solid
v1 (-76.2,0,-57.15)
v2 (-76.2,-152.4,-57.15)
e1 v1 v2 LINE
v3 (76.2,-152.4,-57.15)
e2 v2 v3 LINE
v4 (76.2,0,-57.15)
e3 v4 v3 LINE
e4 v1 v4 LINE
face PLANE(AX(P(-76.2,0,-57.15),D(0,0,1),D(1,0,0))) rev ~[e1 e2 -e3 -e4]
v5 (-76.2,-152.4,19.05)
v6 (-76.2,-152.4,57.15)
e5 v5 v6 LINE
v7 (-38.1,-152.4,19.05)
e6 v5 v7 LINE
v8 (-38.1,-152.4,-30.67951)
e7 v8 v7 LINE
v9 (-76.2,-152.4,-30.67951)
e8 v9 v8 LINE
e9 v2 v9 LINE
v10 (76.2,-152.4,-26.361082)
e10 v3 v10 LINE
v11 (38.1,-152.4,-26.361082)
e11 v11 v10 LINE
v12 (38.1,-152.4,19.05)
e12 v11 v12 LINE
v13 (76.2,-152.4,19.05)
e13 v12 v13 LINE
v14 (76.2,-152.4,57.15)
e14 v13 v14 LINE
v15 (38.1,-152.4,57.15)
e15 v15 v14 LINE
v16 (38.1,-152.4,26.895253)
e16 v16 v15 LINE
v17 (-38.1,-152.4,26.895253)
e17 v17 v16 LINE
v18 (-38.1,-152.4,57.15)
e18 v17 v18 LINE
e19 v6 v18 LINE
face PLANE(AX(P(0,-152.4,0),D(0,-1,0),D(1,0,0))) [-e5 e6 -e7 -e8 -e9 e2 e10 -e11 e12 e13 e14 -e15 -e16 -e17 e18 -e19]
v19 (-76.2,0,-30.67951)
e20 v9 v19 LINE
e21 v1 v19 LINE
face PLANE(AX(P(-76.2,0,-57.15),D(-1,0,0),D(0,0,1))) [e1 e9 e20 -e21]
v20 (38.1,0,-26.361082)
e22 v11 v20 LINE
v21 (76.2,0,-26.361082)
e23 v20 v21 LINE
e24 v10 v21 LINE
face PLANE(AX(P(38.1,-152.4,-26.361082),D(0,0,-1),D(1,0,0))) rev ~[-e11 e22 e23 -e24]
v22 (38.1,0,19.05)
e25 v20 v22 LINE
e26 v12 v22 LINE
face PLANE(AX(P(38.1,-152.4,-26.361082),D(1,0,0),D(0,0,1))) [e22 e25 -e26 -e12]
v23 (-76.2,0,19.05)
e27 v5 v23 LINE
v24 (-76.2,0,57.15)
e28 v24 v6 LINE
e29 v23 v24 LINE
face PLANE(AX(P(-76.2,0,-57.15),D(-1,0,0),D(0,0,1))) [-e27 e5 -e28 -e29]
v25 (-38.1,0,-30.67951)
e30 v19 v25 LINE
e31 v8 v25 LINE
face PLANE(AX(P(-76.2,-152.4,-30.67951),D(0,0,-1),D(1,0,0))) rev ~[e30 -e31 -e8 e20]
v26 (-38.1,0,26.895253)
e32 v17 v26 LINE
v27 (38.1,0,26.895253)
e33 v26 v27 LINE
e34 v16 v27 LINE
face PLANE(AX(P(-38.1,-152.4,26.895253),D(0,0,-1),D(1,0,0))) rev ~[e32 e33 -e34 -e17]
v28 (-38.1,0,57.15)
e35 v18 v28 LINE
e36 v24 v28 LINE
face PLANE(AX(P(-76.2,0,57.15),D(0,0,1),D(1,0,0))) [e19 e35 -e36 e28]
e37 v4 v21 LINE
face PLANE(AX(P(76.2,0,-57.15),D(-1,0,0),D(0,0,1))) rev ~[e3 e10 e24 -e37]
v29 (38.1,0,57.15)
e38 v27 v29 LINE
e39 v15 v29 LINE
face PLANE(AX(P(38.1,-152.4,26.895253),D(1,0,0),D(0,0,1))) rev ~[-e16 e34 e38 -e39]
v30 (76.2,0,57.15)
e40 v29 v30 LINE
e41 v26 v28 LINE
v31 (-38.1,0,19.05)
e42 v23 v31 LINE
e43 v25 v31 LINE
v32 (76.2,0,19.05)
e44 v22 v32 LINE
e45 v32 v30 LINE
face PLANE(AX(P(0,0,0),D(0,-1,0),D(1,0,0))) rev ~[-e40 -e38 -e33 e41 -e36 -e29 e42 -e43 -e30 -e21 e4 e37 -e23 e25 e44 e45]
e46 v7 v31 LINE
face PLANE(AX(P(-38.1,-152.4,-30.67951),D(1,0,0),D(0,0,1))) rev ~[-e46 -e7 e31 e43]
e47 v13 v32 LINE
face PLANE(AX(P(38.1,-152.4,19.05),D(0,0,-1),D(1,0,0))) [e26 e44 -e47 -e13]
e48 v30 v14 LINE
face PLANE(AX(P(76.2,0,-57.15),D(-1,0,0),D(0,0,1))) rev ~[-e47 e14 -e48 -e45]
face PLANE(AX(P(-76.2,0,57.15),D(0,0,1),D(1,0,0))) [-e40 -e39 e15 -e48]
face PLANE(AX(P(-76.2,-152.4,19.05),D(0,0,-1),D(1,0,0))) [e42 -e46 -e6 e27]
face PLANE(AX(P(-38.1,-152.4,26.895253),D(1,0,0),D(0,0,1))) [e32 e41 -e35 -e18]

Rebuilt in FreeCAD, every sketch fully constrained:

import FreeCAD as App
import Part
import Sketcher
from FreeCAD import Vector
Q = App.Units.Quantity


def add_polygon(sketch, points):
    """Adds a closed chain of lines whose ends are joined by coincident constraints."""
    first, n = sketch.GeometryCount, len(points)
    for a, b in zip(points, points[1:] + points[:1]):
        sketch.addGeometry(Part.LineSegment(App.Vector(*a, 0), App.Vector(*b, 0)), False)
    for i in range(n):
        sketch.addConstraint(Sketcher.Constraint("Coincident", first + i, 2, first + (i + 1) % n, 1))

doc = App.newDocument("Part")
body = doc.addObject("PartDesign::Body", "Body")

sketch1 = body.newObject("Sketcher::SketchObject", "Sketch")
sketch1.AttachmentSupport = (doc.getObject("XZ_Plane"), [""])
sketch1.MapMode = "FlatFace"
add_polygon(sketch1, [(-76.2, 57.15), (-76.2, -57.15), (76.2, -57.15), (76.2, 57.15)])
sketch1.addConstraint([
    Sketcher.Constraint("Vertical", 0),
    Sketcher.Constraint("Horizontal", 1),
    Sketcher.Constraint("Vertical", 2),
    Sketcher.Constraint("Horizontal", 3),
    Sketcher.Constraint("Symmetric", 0, 2, 2, 2, -1, 1),
    Sketcher.Constraint("DistanceX", 1, 1, 1, 2, Q("6 in")),
    Sketcher.Constraint("DistanceY", 0, 2, 0, 1, Q("4.5 in")),
])
pad1 = body.newObject("PartDesign::Pad", "Pad")
pad1.Profile = sketch1
pad1.Length = Q("6 in")

sketch2 = body.newObject("Sketcher::SketchObject", "Sketch001")
sketch2.AttachmentSupport = (doc.getObject("XZ_Plane"), [""])
sketch2.MapMode = "FlatFace"
sketch2.AttachmentOffset = App.Placement(Vector(0, 0, 6 * 25.4), App.Rotation())
add_polygon(sketch2, [(-38.1, 57.15), (-38.1, 26.895253), (38.1, 26.895253), (38.1, 57.15)])
sketch2.addConstraint([
    Sketcher.Constraint("Vertical", 0),
    Sketcher.Constraint("Horizontal", 1),
    Sketcher.Constraint("Vertical", 2),
    Sketcher.Constraint("Horizontal", 3),
    Sketcher.Constraint("DistanceX", 1, 1, 1, 2, Q("3 in")),
    Sketcher.Constraint("DistanceX", 0, 2, -1, 1, Q("1.5 in")),
    Sketcher.Constraint("DistanceY", -1, 1, 2, 2, Q("2.25 in")),
    Sketcher.Constraint("DistanceY", 0, 2, 0, 1, 30.254747),
])
pocket1 = body.newObject("PartDesign::Pocket", "Pocket")
pocket1.Profile = sketch2
pocket1.Type = "ThroughAll"

sketch3 = body.newObject("Sketcher::SketchObject", "Sketch002")
sketch3.AttachmentSupport = (doc.getObject("XZ_Plane"), [""])
sketch3.MapMode = "FlatFace"
sketch3.AttachmentOffset = App.Placement(Vector(0, 0, 6 * 25.4), App.Rotation())
add_polygon(sketch3, [(-76.2, 19.05), (-76.2, -30.67951), (-38.1, -30.67951), (-38.1, 19.05)])
sketch3.addConstraint([
    Sketcher.Constraint("Vertical", 0),
    Sketcher.Constraint("Horizontal", 1),
    Sketcher.Constraint("Vertical", 2),
    Sketcher.Constraint("Horizontal", 3),
    Sketcher.Constraint("DistanceX", 1, 1, 1, 2, Q("1.5 in")),
    Sketcher.Constraint("DistanceX", 0, 2, -1, 1, Q("3 in")),
    Sketcher.Constraint("DistanceY", -1, 1, 2, 2, Q("0.75 in")),
    Sketcher.Constraint("DistanceY", 0, 2, 0, 1, 49.729511),
])
pocket2 = body.newObject("PartDesign::Pocket", "Pocket001")
pocket2.Profile = sketch3
pocket2.Type = "ThroughAll"

sketch4 = body.newObject("Sketcher::SketchObject", "Sketch003")
sketch4.AttachmentSupport = (doc.getObject("XZ_Plane"), [""])
sketch4.MapMode = "FlatFace"
sketch4.AttachmentOffset = App.Placement(Vector(0, 0, 6 * 25.4), App.Rotation())
add_polygon(sketch4, [(38.1, 19.05), (38.1, -26.361082), (76.2, -26.361082), (76.2, 19.05)])
sketch4.addConstraint([
    Sketcher.Constraint("Vertical", 0),
    Sketcher.Constraint("Horizontal", 1),
    Sketcher.Constraint("Vertical", 2),
    Sketcher.Constraint("Horizontal", 3),
    Sketcher.Constraint("DistanceX", 1, 1, 1, 2, Q("1.5 in")),
    Sketcher.Constraint("DistanceX", -1, 1, 1, 2, Q("3 in")),
    Sketcher.Constraint("DistanceY", -1, 1, 2, 2, Q("0.75 in")),
    Sketcher.Constraint("DistanceY", 0, 2, 0, 1, 45.411082),
])
pocket3 = body.newObject("PartDesign::Pocket", "Pocket002")
pocket3.Profile = sketch4
pocket3.Type = "ThroughAll"

doc.recompute()
